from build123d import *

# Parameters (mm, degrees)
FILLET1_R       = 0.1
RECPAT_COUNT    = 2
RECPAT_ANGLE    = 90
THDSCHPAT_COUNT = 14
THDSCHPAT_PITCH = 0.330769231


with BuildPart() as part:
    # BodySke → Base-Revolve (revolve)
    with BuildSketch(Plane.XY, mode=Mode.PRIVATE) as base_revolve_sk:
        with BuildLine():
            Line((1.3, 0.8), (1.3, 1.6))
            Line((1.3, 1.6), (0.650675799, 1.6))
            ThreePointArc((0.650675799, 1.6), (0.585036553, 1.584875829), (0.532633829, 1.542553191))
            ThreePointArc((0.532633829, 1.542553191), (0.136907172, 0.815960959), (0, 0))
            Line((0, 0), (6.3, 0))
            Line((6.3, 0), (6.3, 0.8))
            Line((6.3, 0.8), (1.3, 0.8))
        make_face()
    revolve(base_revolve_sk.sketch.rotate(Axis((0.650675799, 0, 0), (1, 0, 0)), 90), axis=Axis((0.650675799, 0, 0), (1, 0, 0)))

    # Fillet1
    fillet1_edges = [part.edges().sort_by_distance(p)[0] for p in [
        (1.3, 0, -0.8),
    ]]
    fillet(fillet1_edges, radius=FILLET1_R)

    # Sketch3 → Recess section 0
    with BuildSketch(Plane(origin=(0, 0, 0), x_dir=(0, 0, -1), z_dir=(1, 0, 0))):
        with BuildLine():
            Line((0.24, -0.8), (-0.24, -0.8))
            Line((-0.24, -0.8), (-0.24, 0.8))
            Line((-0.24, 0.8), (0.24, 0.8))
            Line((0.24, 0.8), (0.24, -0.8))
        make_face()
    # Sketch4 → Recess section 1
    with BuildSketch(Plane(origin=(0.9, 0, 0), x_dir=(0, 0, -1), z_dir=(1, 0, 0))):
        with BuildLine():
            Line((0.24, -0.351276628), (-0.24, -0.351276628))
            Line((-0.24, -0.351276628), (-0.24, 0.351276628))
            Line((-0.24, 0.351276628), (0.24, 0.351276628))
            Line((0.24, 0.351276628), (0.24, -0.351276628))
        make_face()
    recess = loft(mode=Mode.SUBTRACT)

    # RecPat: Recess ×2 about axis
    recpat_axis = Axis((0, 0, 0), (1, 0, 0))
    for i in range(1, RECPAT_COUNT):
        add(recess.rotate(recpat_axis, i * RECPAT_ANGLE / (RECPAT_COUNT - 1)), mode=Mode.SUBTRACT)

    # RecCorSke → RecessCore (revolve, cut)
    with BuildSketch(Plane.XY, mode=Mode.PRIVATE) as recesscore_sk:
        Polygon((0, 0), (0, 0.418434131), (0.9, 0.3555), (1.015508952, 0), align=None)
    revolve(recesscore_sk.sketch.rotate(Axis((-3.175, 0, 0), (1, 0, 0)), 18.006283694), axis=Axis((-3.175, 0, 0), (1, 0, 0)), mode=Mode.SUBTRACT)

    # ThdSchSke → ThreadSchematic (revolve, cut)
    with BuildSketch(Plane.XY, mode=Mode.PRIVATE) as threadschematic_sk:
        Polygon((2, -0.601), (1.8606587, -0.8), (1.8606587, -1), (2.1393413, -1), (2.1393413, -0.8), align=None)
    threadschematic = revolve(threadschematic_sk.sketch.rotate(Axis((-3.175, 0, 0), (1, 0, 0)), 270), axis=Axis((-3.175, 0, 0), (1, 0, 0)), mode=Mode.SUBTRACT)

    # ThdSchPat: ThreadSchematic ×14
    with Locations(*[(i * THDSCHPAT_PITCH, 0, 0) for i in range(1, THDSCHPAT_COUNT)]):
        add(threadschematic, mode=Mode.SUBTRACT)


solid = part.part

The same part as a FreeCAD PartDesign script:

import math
import FreeCAD as App
import Part
import Sketcher
from FreeCAD import Vector
Q = App.Units.Quantity


def edges_at(feature, points):
    """Names of the edges that pass closest to the given points."""
    edges = feature.Shape.Edges
    near = lambda p: min(range(len(edges)), key=lambda i: edges[i].distToShape(Part.Vertex(*p))[0])
    return sorted({f"Edge{near(p) + 1}" for p in points})


def add_polygon(sketch, points):
    """Adds a closed chain of lines whose ends are joined by coincident constraints."""
    first, n = sketch.GeometryCount, len(points)
    for a, b in zip(points, points[1:] + points[:1]):
        sketch.addGeometry(Part.LineSegment(App.Vector(*a, 0), App.Vector(*b, 0)), False)
    for i in range(n):
        sketch.addConstraint(Sketcher.Constraint("Coincident", first + i, 2, first + (i + 1) % n, 1))

doc = App.newDocument("Part")
body = doc.addObject("PartDesign::Body", "Body")

# Sketch on XY plane
sketch1 = body.newObject("Sketcher::SketchObject", "Sketch")
sketch1.AttachmentSupport = (doc.getObject("XY_Plane"), [""])
sketch1.MapMode = "FlatFace"
sketch1.addGeometry([
    Part.LineSegment(Vector(1.3, 0.8, 0), Vector(1.3, 1.6, 0)),  # 0
    Part.LineSegment(Vector(1.3, 1.6, 0), Vector(0.65, 1.6, 0)),  # 1
    Part.ArcOfCircle(Part.Circle(Vector(0.65, 1.45, 0), Vector(0, 0, 1), 0.15), math.radians(90), math.radians(142)),  # 2
    Part.ArcOfCircle(Part.Circle(Vector(2.5, 0, 0), Vector(0, 0, 1), 2.5), math.radians(142), math.radians(180)),  # 3
    Part.LineSegment(Vector(0, 0, 0), Vector(6.3, 0, 0)),  # 4
    Part.LineSegment(Vector(6.3, 0, 0), Vector(6.3, 0.8, 0)),  # 5
    Part.LineSegment(Vector(6.3, 0.8, 0), Vector(1.3, 0.8, 0)),  # 6
], False)
sketch1.addConstraint([
    Sketcher.Constraint("Coincident", 0, 2, 1, 1),
    Sketcher.Constraint("Tangent", 1, 2, 2, 1),
    Sketcher.Constraint("Tangent", 2, 2, 3, 1),
    Sketcher.Constraint("Coincident", 3, 2, 4, 1),
    Sketcher.Constraint("Coincident", 4, 2, 5, 1),
    Sketcher.Constraint("Coincident", 5, 2, 6, 1),
    Sketcher.Constraint("Coincident", 6, 2, 0, 1),
    Sketcher.Constraint("Vertical", 0),
    Sketcher.Constraint("Horizontal", 1),
    Sketcher.Constraint("Horizontal", 4),
    Sketcher.Constraint("Vertical", 5),
    Sketcher.Constraint("Horizontal", 6),
    Sketcher.Constraint("Coincident", 3, 2, -1, 1),
    Sketcher.Constraint("PointOnObject", 3, 3, -1),
    Sketcher.Constraint("Equal", 0, 5),
    Sketcher.Constraint("Radius", 3, 2.5),
    Sketcher.Constraint("DistanceX", 6, 2, 6, 1, 5.0),
    Sketcher.Constraint("Radius", 2, 0.15),
    Sketcher.Constraint("DistanceX", 4, 1, 4, 2, 6.3),
    Sketcher.Constraint("DistanceY", 0, 1, 0, 2, 0.8),
])
revolution = body.newObject("PartDesign::Revolution", "Revolution")
revolution.Profile = sketch1
revolution.ReferenceAxis = (sketch1, ["H_Axis"])
revolution.Angle = 360
doc.recompute()

fillet = body.newObject("PartDesign::Fillet", "Fillet")
fillet.Base = (revolution, edges_at(revolution, [(1.3, 0, -0.8)]))
fillet.Radius = 0.1

# Sketch on YZ plane
sketch2 = body.newObject("Sketcher::SketchObject", "Sketch001")
sketch2.AttachmentSupport = (doc.getObject("YZ_Plane"), [""])
sketch2.MapMode = "FlatFace"
add_polygon(sketch2, [(-0.8, 0.24), (-0.8, -0.24), (0.8, -0.24), (0.8, 0.24)])  # lines 0-3
sketch2.addConstraint([
    Sketcher.Constraint("Vertical", 0),
    Sketcher.Constraint("Horizontal", 1),
    Sketcher.Constraint("Vertical", 2),
    Sketcher.Constraint("Horizontal", 3),
    Sketcher.Constraint("Symmetric", 0, 2, 2, 2, -1, 1),
    Sketcher.Constraint("DistanceX", 1, 1, 1, 2, 1.6),
    Sketcher.Constraint("DistanceY", 0, 2, 0, 1, 0.48),
])

# Sketch on YZ plane
sketch3 = body.newObject("Sketcher::SketchObject", "Sketch002")
sketch3.AttachmentSupport = (doc.getObject("YZ_Plane"), [""])
sketch3.MapMode = "FlatFace"
sketch3.AttachmentOffset = App.Placement(Vector(0, 0, 0.9), App.Rotation())
add_polygon(sketch3, [(-0.35, 0.24), (-0.35, -0.24), (0.35, -0.24), (0.35, 0.24)])  # lines 0-3
sketch3.addConstraint([
    Sketcher.Constraint("Vertical", 0),
    Sketcher.Constraint("Horizontal", 1),
    Sketcher.Constraint("Vertical", 2),
    Sketcher.Constraint("Horizontal", 3),
    Sketcher.Constraint("Symmetric", 0, 2, 2, 2, -1, 1),
    Sketcher.Constraint("DistanceY", 0, 2, 0, 1, 0.48),
    Sketcher.Constraint("DistanceX", 1, 1, 1, 2, 0.702553),
])

subtractiveloft = body.newObject("PartDesign::SubtractiveLoft", "SubtractiveLoft")
subtractiveloft.Profile = sketch2
subtractiveloft.Sections = [sketch3]
doc.recompute()

polarpattern = body.newObject("PartDesign::PolarPattern", "PolarPattern")
polarpattern.Originals = [subtractiveloft]
polarpattern.Axis = (doc.getObject("X_Axis"), [""])
polarpattern.Angle = 90
polarpattern.Occurrences = 2
body.Tip = polarpattern

# Sketch on XY plane
sketch4 = body.newObject("Sketcher::SketchObject", "Sketch003")
sketch4.AttachmentSupport = (doc.getObject("XY_Plane"), [""])
sketch4.MapMode = "FlatFace"
add_polygon(sketch4, [(0, 0.42), (0, 0), (1.02, 0), (0.9, 0.36)])  # lines 0-3
sketch4.addConstraint([
    Sketcher.Constraint("Vertical", 0),
    Sketcher.Constraint("Horizontal", 1),
    Sketcher.Constraint("Coincident", 0, 2, -1, 1),
    Sketcher.Constraint("Angle", 2, Q("108 deg")),
    Sketcher.Constraint("Angle", 3, Q("176 deg")),
    Sketcher.Constraint("DistanceX", -1, 1, 2, 2, 0.9),
    Sketcher.Constraint("DistanceX", 1, 1, 1, 2, 1.015509),
])
groove = body.newObject("PartDesign::Groove", "Groove")
groove.Profile = sketch4
groove.ReferenceAxis = (sketch4, ["H_Axis"])
groove.Angle = 360

# Sketch on XY plane
sketch5 = body.newObject("Sketcher::SketchObject", "Sketch004")
sketch5.AttachmentSupport = (doc.getObject("XY_Plane"), [""])
sketch5.MapMode = "FlatFace"
add_polygon(sketch5, [(2, -0.6), (1.86, -0.8), (1.86, -1), (2.14, -1), (2.14, -0.8)])  # lines 0-4
sketch5.addConstraint([
    Sketcher.Constraint("Vertical", 1),
    Sketcher.Constraint("Horizontal", 2),
    Sketcher.Constraint("Vertical", 3),
    Sketcher.Constraint("Horizontal", 0, 2, 3, 2),
    Sketcher.Constraint("Equal", 0, 4),
    Sketcher.Constraint("Angle", 0, Q("-125 deg")),
    Sketcher.Constraint("DistanceY", 1, 2, 1, 1, 0.2),
    Sketcher.Constraint("DistanceY", 1, 2, -1, 1, 1.0),
    Sketcher.Constraint("DistanceX", -1, 1, 4, 2, 2.0),
    Sketcher.Constraint("DistanceY", 4, 2, -1, 1, 0.601),
])
groove2 = body.newObject("PartDesign::Groove", "Groove001")
groove2.Profile = sketch5
groove2.ReferenceAxis = (sketch5, ["H_Axis"])
groove2.Angle = 360
doc.recompute()

linearpattern = body.newObject("PartDesign::LinearPattern", "LinearPattern")
linearpattern.Originals = [groove2]
linearpattern.Direction = (doc.getObject("X_Axis"), [""])
linearpattern.Mode = "offset"
linearpattern.Offset = 0.330769
linearpattern.Occurrences = 14
body.Tip = linearpattern

doc.recompute()
